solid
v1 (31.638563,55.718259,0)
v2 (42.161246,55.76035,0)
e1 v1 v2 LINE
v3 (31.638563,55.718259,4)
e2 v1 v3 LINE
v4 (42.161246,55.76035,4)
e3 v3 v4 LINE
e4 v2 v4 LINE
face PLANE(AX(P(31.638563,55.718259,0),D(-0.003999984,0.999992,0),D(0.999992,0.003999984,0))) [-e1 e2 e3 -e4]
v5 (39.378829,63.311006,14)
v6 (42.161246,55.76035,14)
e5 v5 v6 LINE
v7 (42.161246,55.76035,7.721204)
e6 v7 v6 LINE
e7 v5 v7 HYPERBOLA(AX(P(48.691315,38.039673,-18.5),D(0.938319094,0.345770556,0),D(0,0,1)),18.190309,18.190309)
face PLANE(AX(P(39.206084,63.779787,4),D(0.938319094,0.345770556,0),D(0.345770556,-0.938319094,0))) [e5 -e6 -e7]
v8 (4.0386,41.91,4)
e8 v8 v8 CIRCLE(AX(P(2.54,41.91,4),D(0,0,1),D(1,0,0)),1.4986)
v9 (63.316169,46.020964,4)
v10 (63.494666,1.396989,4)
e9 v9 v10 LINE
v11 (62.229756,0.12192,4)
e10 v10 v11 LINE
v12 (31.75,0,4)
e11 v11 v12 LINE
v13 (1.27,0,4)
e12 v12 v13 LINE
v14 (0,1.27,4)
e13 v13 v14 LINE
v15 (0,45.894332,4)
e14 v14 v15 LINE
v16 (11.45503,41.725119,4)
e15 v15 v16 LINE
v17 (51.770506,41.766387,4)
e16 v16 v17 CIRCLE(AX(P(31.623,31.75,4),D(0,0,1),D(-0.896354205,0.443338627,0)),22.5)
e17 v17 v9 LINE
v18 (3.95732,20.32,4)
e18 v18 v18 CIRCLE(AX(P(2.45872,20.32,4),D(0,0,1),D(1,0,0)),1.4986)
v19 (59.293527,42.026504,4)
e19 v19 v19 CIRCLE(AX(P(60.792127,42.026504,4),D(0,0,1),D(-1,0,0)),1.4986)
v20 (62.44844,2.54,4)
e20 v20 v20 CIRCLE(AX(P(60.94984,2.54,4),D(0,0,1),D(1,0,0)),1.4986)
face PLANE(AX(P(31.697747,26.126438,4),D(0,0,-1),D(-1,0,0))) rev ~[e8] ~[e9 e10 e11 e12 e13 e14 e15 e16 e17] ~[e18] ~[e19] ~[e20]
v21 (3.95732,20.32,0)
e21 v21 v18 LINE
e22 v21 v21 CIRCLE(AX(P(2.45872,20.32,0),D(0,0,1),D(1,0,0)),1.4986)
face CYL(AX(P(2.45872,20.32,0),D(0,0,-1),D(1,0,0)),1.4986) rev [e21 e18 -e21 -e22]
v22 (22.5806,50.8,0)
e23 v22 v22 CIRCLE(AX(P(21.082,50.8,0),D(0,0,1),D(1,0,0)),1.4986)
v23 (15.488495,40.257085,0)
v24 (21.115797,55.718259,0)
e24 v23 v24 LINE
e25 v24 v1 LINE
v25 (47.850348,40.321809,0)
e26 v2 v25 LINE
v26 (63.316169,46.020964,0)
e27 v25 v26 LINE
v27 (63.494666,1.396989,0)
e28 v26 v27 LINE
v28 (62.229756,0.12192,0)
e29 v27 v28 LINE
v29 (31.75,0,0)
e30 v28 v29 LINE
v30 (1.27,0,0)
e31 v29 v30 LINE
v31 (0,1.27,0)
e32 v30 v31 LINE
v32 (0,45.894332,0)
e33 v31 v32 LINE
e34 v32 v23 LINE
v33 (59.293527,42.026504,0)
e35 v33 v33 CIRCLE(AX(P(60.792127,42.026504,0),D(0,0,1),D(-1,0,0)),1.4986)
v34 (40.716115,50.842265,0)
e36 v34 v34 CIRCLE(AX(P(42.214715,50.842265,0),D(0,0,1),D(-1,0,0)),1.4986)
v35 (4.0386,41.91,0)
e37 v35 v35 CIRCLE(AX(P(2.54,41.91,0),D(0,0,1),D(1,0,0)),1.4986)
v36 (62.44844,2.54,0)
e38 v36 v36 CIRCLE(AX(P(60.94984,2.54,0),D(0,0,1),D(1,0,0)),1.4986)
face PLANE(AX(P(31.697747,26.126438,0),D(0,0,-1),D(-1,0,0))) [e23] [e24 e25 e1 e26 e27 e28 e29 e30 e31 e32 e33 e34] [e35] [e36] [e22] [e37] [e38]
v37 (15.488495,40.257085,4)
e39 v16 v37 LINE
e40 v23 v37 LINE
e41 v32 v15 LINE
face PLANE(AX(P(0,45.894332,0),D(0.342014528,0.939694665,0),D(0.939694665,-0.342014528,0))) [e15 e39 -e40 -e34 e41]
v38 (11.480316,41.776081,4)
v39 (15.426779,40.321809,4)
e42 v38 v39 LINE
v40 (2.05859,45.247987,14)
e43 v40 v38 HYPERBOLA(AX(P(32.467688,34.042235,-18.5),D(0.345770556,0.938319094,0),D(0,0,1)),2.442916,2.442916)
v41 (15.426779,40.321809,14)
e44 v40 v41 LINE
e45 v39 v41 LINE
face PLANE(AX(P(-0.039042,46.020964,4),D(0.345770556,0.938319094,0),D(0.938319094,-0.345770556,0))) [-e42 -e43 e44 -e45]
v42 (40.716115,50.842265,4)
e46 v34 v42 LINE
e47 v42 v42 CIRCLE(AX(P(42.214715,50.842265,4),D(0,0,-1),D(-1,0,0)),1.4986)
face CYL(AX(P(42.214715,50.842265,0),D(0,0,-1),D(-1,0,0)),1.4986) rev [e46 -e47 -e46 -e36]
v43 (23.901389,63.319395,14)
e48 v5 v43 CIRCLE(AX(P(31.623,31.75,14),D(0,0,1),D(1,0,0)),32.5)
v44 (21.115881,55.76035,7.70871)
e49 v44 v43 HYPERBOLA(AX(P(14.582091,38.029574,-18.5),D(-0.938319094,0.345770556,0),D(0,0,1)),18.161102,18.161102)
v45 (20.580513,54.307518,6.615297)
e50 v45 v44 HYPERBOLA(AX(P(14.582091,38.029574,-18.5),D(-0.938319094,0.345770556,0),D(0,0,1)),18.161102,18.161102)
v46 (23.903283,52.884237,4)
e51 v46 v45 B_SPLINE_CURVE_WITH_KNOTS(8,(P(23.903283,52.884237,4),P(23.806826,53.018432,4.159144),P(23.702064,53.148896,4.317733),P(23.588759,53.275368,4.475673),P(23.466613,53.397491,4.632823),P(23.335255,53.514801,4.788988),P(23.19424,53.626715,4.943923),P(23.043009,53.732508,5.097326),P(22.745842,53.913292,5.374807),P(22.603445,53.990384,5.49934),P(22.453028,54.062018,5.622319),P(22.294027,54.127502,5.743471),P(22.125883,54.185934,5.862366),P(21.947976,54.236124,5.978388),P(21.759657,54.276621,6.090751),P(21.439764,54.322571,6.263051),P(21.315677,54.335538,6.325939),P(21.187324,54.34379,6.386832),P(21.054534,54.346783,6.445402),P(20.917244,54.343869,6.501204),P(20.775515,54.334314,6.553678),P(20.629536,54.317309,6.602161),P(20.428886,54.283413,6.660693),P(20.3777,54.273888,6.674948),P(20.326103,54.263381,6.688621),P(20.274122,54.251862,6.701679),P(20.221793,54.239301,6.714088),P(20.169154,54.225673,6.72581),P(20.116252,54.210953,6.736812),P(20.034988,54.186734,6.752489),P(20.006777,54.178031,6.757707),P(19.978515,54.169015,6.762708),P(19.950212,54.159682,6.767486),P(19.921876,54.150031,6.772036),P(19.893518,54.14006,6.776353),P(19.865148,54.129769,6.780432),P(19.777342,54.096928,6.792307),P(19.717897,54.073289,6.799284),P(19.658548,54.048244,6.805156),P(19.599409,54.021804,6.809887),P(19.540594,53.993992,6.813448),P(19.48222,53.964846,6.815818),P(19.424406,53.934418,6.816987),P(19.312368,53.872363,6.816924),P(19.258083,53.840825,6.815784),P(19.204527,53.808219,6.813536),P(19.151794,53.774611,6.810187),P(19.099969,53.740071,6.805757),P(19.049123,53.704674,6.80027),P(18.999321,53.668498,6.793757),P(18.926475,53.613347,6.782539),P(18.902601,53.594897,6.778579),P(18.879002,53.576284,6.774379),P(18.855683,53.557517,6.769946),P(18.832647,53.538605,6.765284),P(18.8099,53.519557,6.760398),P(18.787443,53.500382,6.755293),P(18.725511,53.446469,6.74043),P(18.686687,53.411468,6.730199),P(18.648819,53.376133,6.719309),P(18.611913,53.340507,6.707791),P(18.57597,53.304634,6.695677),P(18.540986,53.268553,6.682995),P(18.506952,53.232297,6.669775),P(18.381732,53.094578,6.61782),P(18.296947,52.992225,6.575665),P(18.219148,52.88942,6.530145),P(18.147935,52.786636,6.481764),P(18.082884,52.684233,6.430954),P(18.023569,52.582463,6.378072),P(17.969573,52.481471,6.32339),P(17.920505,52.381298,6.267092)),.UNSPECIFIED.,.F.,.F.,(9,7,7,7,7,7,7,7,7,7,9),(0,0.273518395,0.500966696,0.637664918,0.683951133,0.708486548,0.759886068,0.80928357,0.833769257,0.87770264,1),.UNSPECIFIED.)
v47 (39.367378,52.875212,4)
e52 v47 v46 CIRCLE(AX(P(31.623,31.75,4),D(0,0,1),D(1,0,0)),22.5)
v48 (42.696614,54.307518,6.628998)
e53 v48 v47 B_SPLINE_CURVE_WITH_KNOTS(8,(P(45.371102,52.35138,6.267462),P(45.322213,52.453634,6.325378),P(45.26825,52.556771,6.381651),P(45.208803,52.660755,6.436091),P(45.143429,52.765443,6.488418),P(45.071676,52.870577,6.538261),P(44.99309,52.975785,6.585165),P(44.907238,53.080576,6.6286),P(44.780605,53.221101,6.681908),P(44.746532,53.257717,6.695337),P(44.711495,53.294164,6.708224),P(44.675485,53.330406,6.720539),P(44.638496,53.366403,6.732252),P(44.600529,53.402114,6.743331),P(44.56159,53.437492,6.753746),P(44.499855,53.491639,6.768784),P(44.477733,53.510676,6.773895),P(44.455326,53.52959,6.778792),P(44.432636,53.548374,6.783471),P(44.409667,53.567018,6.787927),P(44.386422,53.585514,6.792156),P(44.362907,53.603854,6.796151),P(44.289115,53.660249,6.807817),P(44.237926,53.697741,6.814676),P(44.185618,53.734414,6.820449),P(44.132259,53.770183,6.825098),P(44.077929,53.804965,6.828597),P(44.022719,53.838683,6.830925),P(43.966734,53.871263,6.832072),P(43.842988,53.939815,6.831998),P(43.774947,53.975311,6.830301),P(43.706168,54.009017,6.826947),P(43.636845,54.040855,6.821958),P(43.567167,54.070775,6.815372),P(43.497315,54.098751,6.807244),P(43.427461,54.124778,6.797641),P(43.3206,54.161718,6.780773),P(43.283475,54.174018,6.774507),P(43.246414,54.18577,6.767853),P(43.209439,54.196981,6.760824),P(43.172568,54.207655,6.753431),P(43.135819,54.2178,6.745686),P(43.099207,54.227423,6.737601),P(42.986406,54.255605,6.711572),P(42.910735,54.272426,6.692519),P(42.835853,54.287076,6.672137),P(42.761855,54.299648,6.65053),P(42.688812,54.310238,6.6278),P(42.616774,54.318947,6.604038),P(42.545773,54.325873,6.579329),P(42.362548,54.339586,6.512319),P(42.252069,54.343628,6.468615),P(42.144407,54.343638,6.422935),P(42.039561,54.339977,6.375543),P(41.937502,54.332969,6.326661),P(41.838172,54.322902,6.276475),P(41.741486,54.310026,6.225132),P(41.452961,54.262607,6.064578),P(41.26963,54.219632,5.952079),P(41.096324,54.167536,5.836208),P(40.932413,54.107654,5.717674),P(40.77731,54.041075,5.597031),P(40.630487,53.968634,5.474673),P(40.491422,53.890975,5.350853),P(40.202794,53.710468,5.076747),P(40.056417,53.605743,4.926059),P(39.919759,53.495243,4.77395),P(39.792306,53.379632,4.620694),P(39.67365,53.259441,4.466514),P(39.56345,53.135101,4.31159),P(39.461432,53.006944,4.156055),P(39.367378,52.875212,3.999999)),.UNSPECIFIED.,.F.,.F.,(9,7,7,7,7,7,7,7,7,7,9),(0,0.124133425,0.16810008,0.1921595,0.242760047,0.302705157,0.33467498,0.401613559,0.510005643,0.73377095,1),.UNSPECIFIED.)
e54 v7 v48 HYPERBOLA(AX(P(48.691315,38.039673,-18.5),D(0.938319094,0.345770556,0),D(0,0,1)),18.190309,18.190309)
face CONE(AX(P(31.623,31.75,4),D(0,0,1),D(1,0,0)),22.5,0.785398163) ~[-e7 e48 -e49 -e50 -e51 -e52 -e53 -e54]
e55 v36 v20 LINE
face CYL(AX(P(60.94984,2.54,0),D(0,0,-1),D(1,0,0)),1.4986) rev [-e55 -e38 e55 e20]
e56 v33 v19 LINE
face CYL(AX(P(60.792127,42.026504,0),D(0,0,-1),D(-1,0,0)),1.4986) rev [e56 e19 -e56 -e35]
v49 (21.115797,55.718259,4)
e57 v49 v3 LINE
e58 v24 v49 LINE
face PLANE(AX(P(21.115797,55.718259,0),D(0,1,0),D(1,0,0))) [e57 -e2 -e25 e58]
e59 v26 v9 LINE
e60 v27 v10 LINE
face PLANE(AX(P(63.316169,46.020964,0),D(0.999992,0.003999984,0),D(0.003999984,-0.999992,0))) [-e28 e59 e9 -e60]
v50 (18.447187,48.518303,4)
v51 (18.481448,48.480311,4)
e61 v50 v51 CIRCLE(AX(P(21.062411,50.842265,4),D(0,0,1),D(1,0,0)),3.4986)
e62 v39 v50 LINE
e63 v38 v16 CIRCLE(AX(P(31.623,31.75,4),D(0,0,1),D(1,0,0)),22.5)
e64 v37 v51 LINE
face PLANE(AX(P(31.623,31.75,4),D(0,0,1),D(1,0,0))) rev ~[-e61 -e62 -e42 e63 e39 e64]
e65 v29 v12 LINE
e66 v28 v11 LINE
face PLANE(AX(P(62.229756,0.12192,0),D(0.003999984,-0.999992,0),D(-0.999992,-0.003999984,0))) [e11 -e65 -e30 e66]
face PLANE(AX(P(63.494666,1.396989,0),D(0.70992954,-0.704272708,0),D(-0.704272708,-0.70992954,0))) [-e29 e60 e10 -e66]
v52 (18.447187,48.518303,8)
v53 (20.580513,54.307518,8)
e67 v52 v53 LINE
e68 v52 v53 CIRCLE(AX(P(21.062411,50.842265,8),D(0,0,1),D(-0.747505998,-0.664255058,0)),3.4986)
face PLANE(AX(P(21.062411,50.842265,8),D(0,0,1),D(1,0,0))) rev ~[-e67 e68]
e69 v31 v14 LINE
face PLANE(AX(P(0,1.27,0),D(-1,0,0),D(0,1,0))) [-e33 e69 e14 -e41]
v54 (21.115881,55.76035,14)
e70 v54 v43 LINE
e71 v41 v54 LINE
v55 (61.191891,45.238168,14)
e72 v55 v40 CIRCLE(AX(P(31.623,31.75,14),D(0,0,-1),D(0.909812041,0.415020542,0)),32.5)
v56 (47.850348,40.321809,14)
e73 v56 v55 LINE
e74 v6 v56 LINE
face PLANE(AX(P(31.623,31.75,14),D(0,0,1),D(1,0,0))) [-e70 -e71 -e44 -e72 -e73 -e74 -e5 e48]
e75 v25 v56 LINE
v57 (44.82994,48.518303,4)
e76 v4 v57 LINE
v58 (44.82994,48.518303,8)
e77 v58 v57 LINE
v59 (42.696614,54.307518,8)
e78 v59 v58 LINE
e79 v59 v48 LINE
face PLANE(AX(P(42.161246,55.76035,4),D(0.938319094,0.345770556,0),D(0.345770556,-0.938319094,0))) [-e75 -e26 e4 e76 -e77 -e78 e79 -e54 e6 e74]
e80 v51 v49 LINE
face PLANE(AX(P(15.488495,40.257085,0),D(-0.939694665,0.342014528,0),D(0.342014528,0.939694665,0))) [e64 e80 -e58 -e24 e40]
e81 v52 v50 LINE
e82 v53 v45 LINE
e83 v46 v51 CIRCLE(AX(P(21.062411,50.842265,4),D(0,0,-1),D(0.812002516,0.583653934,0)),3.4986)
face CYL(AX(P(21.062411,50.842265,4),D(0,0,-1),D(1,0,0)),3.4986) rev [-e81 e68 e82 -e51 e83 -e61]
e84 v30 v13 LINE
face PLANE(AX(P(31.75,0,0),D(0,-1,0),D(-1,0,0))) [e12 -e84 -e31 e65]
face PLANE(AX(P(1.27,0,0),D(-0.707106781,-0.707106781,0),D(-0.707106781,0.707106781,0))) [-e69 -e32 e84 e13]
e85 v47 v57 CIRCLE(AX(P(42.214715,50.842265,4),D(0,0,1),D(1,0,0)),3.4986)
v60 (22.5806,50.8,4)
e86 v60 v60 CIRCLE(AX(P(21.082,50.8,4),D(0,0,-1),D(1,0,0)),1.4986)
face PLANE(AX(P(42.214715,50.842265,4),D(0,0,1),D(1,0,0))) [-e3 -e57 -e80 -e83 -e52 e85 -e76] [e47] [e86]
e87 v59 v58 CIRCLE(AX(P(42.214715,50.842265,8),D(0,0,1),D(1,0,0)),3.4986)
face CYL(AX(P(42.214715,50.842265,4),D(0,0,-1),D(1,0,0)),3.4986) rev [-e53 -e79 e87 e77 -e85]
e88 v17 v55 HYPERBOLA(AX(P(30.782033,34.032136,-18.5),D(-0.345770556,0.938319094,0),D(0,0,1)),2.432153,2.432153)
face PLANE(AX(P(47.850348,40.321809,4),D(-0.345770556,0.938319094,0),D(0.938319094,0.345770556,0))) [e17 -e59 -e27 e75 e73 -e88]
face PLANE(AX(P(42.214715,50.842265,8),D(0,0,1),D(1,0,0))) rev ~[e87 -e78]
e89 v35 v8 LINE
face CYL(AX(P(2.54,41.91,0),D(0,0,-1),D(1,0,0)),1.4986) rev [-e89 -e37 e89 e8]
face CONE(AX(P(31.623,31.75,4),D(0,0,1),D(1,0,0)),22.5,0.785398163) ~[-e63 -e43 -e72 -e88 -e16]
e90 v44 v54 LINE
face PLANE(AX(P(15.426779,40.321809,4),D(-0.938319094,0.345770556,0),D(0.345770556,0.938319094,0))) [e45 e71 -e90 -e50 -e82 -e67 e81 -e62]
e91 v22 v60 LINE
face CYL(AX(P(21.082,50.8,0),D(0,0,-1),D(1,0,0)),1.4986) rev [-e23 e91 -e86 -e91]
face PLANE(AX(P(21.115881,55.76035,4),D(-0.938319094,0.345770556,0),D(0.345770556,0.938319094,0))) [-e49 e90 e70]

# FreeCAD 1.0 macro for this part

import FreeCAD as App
import Part
import Sketcher
Q = App.Units.Quantity


def faces_at(feature, points):
    """Names of the faces that lie closest to the given points."""
    faces = feature.Shape.Faces
    near = lambda p: min(range(len(faces)), key=lambda i: faces[i].distToShape(Part.Vertex(*p))[0])
    return sorted({f"Face{near(p) + 1}" for p in points})


def add_polygon(sketch, points):
    """Adds a closed chain of lines whose ends are joined by coincident constraints."""
    first, n = sketch.GeometryCount, len(points)
    for a, b in zip(points, points[1:] + points[:1]):
        sketch.addGeometry(Part.LineSegment(App.Vector(*a, 0), App.Vector(*b, 0)), False)
    for i in range(n):
        sketch.addConstraint(Sketcher.Constraint("Coincident", first + i, 2, first + (i + 1) % n, 1))

doc = App.newDocument("Part")
body = doc.addObject("PartDesign::Body", "Body")

sketch1 = body.newObject("Sketcher::SketchObject", "Sketch")
sketch1.AttachmentSupport = (doc.getObject("XY_Plane"), [""])
sketch1.MapMode = "FlatFace"
add_polygon(sketch1, [(15.5, 40.3), (0, 45.9), (0, 1.3), (1.3, 0), (31.8, 0), (62.2, 0.1), (63.5, 1.4), (63.3, 46), (47.9, 40.3), (42.2, 55.8), (31.6, 55.7), (21.1, 55.7)])
sketch1.addGeometry(Part.Circle(App.Vector(60.9, 2.5, 0), App.Vector(0, 0, 1), 1.5), False)
sketch1.addGeometry(Part.Circle(App.Vector(2.5, 20.3, 0), App.Vector(0, 0, 1), 1.5), False)
sketch1.addGeometry(Part.Circle(App.Vector(60.8, 42, 0), App.Vector(0, 0, 1), 1.5), False)
sketch1.addGeometry(Part.Circle(App.Vector(42.2, 50.8, 0), App.Vector(0, 0, 1), 1.5), False)
sketch1.addGeometry(Part.Circle(App.Vector(21.1, 50.8, 0), App.Vector(0, 0, 1), 1.5), False)
sketch1.addGeometry(Part.Circle(App.Vector(2.5, 41.9, 0), App.Vector(0, 0, 1), 1.5), False)
sketch1.addConstraint([
    Sketcher.Constraint("Vertical", 1),
    Sketcher.Constraint("Horizontal", 3),
    Sketcher.Constraint("Horizontal", 10),
    Sketcher.Constraint("Equal", 12, 13),
    Sketcher.Constraint("Equal", 13, 14),
    Sketcher.Constraint("Equal", 14, 15),
    Sketcher.Constraint("Equal", 15, 16),
    Sketcher.Constraint("Equal", 16, 17),
    Sketcher.Constraint("PointOnObject", 0, 2, -2),
    Sketcher.Constraint("PointOnObject", 2, 2, -1),
    Sketcher.Constraint("Perpendicular", 4, 6),
    Sketcher.Constraint("Perpendicular", 7, 8),
    Sketcher.Constraint("Perpendicular", 6, 9),
    Sketcher.Constraint("Perpendicular", 0, 11),
    Sketcher.Constraint("Equal", 2, 5),
    Sketcher.Constraint("Equal", 0, 7),
    Sketcher.Constraint("Equal", 8, 11),
    Sketcher.Constraint("Angle", 2, Q("-45 deg")),
    Sketcher.Constraint("Diameter", 12, 2.9972),
    Sketcher.Constraint("DistanceX", 3, 1, 3, 2, 30.48),
    Sketcher.Constraint("DistanceY", -1, 1, 16, 3, 50.8),
    Sketcher.Constraint("Distance", 4, 30.48),
    Sketcher.Constraint("DistanceY", -1, 1, 12, 3, 2.54),
    Sketcher.Constraint("DistanceY", -1, 1, 13, 3, 20.32),
    Sketcher.Constraint("DistanceX", -1, 1, 17, 3, 2.54),
    Sketcher.Constraint("DistanceY", -1, 1, 17, 3, 41.91),
    Sketcher.Constraint("DistanceY", -1, 1, 1, 2, 1.27),
    Sketcher.Constraint("DistanceX", -1, 1, 16, 3, 21.082),
    Sketcher.Constraint("Distance", 8, 16.453402),
    Sketcher.Constraint("DistanceY", 1, 2, 1, 1, 44.624332),
    Sketcher.Constraint("DistanceY", 6, 2, 15, 3, 4.821301),
    Sketcher.Constraint("DistanceX", 8, 2, 7, 2, 5.689102),
    Sketcher.Constraint("Distance", 6, 44.624332),
    Sketcher.Constraint("DistanceX", 10, 2, 10, 1, 10.522766),
    Sketcher.Constraint("DistanceX", -1, 1, 12, 3, 60.94984),
    Sketcher.Constraint("DistanceX", -1, 1, 13, 3, 2.45872),
    Sketcher.Constraint("DistanceY", -1, 1, 4, 2, 0.12192),
    Sketcher.Constraint("DistanceY", -1, 1, 5, 2, 1.396989),
    Sketcher.Constraint("DistanceY", -1, 1, 7, 2, 40.321809),
    Sketcher.Constraint("DistanceX", 15, 3, 14, 3, 18.577412),
    Sketcher.Constraint("DistanceY", 14, 3, 15, 3, 8.815761),
    Sketcher.Constraint("DistanceX", 14, 3, 4, 2, 1.437629),
])
pad1 = body.newObject("PartDesign::Pad", "Pad")
pad1.Profile = sketch1
pad1.Length = 4
body2 = doc.addObject("PartDesign::Body", "Body001")

sketch2 = body2.newObject("Sketcher::SketchObject", "Sketch001")
sketch2.AttachmentSupport = (doc.getObject("XY_Plane001"), [""])
sketch2.MapMode = "FlatFace"
sketch2.AttachmentOffset = App.Placement(App.Vector(0, 0, 4), App.Rotation())
sketch2.addGeometry(Part.Circle(App.Vector(32, 32, 0), App.Vector(0, 0, 1), 22), False)
sketch2.addConstraint([
    Sketcher.Constraint("Diameter", 0, 45.0),
    Sketcher.Constraint("DistanceY", -1, 1, 0, 3, 31.75),
    Sketcher.Constraint("DistanceX", -1, 1, 0, 3, 31.623),
])
pad2 = body2.newObject("PartDesign::Pad", "Pad001")
pad2.Profile = sketch2
pad2.Length = 10
doc.recompute()

datumplane = body2.newObject("PartDesign::Plane", "DatumPlane")
datumplane.AttachmentSupport = (doc.getObject("XY_Plane001"), [""])
datumplane.MapMode = "FlatFace"
datumplane.AttachmentOffset = App.Placement(App.Vector(0, 0, 4), App.Rotation())
draft = body2.newObject("PartDesign::Draft", "Draft")
draft.Base = (pad2, faces_at(pad2, [(9.123, 31.75, 9)]))
draft.NeutralPlane = (datumplane, [""])
draft.Angle = 45
draft.Reversed = True
doc.recompute()

boolean = body.newObject("PartDesign::Boolean", "Boolean")
boolean.Type = "Fuse"
boolean.addObjects([body2])

sketch3 = body.newObject("Sketcher::SketchObject", "Sketch002")
sketch3.AttachmentSupport = (doc.getObject("XY_Plane"), [""])
sketch3.MapMode = "FlatFace"
sketch3.AttachmentOffset = App.Placement(App.Vector(0, 0, 4), App.Rotation())
add_polygon(sketch3, [(63, 46), (55, 69), (39, 64), (42, 56), (48, 40)])
add_polygon(sketch3, [(0, 46), (15, 40), (21, 56), (24, 64), (9, 69)])
sketch3.addConstraint([
    Sketcher.Constraint("Perpendicular", 0, 1),
    Sketcher.Constraint("Perpendicular", 1, 2),
    Sketcher.Constraint("Parallel", 2, 3),
    Sketcher.Constraint("Perpendicular", 3, 4),
    Sketcher.Constraint("Perpendicular", 5, 6),
    Sketcher.Constraint("Parallel", 6, 7),
    Sketcher.Constraint("Perpendicular", 7, 8),
    Sketcher.Constraint("Perpendicular", 8, 9),
    Sketcher.Constraint("Horizontal", 3, 2, 5, 2),
    Sketcher.Constraint("Horizontal", 2, 2, 6, 2),
    Sketcher.Constraint("Horizontal", 1, 2, 7, 2),
    Sketcher.Constraint("Horizontal", 0, 2, 8, 2),
    Sketcher.Constraint("Equal", 4, 5),
    Sketcher.Constraint("Distance", 0, 25.0),
    Sketcher.Constraint("Distance", 2, 8.546598),
    Sketcher.Constraint("DistanceX", 2, 2, 3, 2, 5.689102),
    Sketcher.Constraint("DistanceY", -1, 1, 0, 2, 69.478941),
    Sketcher.Constraint("DistanceY", -1, 1, 2, 2, 55.76035),
    Sketcher.Constraint("DistanceX", -1, 1, 4, 2, 63.316169),
    Sketcher.Constraint("DistanceX", -1, 1, 5, 2, 15.426779),
])
pocket1 = body.newObject("PartDesign::Pocket", "Pocket")
pocket1.Profile = sketch3
pocket1.Length = 10
pocket1.Reversed = True

sketch4 = body.newObject("Sketcher::SketchObject", "Sketch003")
sketch4.AttachmentSupport = (doc.getObject("XY_Plane"), [""])
sketch4.MapMode = "FlatFace"
sketch4.AttachmentOffset = App.Placement(App.Vector(0, 0, 4), App.Rotation())
sketch4.addGeometry([
    Part.Circle(App.Vector(21.1, 50.8, 0), App.Vector(0, 0, 1), 3.5),
    Part.Circle(App.Vector(42.2, 50.8, 0), App.Vector(0, 0, 1), 3.5),
], False)
sketch4.addConstraint([
    Sketcher.Constraint("Equal", 0, 1),
    Sketcher.Constraint("Horizontal", 0, 3, 1, 3),
    Sketcher.Constraint("Diameter", 0, 6.9972),
    Sketcher.Constraint("DistanceX", -1, 1, 0, 3, 21.062411),
    Sketcher.Constraint("DistanceY", -1, 1, 0, 3, 50.842265),
    Sketcher.Constraint("DistanceX", -1, 1, 1, 3, 42.214715),
])
pocket2 = body.newObject("PartDesign::Pocket", "Pocket001")
pocket2.Profile = sketch4
pocket2.Length = 4
pocket2.Reversed = True

doc.recompute()
